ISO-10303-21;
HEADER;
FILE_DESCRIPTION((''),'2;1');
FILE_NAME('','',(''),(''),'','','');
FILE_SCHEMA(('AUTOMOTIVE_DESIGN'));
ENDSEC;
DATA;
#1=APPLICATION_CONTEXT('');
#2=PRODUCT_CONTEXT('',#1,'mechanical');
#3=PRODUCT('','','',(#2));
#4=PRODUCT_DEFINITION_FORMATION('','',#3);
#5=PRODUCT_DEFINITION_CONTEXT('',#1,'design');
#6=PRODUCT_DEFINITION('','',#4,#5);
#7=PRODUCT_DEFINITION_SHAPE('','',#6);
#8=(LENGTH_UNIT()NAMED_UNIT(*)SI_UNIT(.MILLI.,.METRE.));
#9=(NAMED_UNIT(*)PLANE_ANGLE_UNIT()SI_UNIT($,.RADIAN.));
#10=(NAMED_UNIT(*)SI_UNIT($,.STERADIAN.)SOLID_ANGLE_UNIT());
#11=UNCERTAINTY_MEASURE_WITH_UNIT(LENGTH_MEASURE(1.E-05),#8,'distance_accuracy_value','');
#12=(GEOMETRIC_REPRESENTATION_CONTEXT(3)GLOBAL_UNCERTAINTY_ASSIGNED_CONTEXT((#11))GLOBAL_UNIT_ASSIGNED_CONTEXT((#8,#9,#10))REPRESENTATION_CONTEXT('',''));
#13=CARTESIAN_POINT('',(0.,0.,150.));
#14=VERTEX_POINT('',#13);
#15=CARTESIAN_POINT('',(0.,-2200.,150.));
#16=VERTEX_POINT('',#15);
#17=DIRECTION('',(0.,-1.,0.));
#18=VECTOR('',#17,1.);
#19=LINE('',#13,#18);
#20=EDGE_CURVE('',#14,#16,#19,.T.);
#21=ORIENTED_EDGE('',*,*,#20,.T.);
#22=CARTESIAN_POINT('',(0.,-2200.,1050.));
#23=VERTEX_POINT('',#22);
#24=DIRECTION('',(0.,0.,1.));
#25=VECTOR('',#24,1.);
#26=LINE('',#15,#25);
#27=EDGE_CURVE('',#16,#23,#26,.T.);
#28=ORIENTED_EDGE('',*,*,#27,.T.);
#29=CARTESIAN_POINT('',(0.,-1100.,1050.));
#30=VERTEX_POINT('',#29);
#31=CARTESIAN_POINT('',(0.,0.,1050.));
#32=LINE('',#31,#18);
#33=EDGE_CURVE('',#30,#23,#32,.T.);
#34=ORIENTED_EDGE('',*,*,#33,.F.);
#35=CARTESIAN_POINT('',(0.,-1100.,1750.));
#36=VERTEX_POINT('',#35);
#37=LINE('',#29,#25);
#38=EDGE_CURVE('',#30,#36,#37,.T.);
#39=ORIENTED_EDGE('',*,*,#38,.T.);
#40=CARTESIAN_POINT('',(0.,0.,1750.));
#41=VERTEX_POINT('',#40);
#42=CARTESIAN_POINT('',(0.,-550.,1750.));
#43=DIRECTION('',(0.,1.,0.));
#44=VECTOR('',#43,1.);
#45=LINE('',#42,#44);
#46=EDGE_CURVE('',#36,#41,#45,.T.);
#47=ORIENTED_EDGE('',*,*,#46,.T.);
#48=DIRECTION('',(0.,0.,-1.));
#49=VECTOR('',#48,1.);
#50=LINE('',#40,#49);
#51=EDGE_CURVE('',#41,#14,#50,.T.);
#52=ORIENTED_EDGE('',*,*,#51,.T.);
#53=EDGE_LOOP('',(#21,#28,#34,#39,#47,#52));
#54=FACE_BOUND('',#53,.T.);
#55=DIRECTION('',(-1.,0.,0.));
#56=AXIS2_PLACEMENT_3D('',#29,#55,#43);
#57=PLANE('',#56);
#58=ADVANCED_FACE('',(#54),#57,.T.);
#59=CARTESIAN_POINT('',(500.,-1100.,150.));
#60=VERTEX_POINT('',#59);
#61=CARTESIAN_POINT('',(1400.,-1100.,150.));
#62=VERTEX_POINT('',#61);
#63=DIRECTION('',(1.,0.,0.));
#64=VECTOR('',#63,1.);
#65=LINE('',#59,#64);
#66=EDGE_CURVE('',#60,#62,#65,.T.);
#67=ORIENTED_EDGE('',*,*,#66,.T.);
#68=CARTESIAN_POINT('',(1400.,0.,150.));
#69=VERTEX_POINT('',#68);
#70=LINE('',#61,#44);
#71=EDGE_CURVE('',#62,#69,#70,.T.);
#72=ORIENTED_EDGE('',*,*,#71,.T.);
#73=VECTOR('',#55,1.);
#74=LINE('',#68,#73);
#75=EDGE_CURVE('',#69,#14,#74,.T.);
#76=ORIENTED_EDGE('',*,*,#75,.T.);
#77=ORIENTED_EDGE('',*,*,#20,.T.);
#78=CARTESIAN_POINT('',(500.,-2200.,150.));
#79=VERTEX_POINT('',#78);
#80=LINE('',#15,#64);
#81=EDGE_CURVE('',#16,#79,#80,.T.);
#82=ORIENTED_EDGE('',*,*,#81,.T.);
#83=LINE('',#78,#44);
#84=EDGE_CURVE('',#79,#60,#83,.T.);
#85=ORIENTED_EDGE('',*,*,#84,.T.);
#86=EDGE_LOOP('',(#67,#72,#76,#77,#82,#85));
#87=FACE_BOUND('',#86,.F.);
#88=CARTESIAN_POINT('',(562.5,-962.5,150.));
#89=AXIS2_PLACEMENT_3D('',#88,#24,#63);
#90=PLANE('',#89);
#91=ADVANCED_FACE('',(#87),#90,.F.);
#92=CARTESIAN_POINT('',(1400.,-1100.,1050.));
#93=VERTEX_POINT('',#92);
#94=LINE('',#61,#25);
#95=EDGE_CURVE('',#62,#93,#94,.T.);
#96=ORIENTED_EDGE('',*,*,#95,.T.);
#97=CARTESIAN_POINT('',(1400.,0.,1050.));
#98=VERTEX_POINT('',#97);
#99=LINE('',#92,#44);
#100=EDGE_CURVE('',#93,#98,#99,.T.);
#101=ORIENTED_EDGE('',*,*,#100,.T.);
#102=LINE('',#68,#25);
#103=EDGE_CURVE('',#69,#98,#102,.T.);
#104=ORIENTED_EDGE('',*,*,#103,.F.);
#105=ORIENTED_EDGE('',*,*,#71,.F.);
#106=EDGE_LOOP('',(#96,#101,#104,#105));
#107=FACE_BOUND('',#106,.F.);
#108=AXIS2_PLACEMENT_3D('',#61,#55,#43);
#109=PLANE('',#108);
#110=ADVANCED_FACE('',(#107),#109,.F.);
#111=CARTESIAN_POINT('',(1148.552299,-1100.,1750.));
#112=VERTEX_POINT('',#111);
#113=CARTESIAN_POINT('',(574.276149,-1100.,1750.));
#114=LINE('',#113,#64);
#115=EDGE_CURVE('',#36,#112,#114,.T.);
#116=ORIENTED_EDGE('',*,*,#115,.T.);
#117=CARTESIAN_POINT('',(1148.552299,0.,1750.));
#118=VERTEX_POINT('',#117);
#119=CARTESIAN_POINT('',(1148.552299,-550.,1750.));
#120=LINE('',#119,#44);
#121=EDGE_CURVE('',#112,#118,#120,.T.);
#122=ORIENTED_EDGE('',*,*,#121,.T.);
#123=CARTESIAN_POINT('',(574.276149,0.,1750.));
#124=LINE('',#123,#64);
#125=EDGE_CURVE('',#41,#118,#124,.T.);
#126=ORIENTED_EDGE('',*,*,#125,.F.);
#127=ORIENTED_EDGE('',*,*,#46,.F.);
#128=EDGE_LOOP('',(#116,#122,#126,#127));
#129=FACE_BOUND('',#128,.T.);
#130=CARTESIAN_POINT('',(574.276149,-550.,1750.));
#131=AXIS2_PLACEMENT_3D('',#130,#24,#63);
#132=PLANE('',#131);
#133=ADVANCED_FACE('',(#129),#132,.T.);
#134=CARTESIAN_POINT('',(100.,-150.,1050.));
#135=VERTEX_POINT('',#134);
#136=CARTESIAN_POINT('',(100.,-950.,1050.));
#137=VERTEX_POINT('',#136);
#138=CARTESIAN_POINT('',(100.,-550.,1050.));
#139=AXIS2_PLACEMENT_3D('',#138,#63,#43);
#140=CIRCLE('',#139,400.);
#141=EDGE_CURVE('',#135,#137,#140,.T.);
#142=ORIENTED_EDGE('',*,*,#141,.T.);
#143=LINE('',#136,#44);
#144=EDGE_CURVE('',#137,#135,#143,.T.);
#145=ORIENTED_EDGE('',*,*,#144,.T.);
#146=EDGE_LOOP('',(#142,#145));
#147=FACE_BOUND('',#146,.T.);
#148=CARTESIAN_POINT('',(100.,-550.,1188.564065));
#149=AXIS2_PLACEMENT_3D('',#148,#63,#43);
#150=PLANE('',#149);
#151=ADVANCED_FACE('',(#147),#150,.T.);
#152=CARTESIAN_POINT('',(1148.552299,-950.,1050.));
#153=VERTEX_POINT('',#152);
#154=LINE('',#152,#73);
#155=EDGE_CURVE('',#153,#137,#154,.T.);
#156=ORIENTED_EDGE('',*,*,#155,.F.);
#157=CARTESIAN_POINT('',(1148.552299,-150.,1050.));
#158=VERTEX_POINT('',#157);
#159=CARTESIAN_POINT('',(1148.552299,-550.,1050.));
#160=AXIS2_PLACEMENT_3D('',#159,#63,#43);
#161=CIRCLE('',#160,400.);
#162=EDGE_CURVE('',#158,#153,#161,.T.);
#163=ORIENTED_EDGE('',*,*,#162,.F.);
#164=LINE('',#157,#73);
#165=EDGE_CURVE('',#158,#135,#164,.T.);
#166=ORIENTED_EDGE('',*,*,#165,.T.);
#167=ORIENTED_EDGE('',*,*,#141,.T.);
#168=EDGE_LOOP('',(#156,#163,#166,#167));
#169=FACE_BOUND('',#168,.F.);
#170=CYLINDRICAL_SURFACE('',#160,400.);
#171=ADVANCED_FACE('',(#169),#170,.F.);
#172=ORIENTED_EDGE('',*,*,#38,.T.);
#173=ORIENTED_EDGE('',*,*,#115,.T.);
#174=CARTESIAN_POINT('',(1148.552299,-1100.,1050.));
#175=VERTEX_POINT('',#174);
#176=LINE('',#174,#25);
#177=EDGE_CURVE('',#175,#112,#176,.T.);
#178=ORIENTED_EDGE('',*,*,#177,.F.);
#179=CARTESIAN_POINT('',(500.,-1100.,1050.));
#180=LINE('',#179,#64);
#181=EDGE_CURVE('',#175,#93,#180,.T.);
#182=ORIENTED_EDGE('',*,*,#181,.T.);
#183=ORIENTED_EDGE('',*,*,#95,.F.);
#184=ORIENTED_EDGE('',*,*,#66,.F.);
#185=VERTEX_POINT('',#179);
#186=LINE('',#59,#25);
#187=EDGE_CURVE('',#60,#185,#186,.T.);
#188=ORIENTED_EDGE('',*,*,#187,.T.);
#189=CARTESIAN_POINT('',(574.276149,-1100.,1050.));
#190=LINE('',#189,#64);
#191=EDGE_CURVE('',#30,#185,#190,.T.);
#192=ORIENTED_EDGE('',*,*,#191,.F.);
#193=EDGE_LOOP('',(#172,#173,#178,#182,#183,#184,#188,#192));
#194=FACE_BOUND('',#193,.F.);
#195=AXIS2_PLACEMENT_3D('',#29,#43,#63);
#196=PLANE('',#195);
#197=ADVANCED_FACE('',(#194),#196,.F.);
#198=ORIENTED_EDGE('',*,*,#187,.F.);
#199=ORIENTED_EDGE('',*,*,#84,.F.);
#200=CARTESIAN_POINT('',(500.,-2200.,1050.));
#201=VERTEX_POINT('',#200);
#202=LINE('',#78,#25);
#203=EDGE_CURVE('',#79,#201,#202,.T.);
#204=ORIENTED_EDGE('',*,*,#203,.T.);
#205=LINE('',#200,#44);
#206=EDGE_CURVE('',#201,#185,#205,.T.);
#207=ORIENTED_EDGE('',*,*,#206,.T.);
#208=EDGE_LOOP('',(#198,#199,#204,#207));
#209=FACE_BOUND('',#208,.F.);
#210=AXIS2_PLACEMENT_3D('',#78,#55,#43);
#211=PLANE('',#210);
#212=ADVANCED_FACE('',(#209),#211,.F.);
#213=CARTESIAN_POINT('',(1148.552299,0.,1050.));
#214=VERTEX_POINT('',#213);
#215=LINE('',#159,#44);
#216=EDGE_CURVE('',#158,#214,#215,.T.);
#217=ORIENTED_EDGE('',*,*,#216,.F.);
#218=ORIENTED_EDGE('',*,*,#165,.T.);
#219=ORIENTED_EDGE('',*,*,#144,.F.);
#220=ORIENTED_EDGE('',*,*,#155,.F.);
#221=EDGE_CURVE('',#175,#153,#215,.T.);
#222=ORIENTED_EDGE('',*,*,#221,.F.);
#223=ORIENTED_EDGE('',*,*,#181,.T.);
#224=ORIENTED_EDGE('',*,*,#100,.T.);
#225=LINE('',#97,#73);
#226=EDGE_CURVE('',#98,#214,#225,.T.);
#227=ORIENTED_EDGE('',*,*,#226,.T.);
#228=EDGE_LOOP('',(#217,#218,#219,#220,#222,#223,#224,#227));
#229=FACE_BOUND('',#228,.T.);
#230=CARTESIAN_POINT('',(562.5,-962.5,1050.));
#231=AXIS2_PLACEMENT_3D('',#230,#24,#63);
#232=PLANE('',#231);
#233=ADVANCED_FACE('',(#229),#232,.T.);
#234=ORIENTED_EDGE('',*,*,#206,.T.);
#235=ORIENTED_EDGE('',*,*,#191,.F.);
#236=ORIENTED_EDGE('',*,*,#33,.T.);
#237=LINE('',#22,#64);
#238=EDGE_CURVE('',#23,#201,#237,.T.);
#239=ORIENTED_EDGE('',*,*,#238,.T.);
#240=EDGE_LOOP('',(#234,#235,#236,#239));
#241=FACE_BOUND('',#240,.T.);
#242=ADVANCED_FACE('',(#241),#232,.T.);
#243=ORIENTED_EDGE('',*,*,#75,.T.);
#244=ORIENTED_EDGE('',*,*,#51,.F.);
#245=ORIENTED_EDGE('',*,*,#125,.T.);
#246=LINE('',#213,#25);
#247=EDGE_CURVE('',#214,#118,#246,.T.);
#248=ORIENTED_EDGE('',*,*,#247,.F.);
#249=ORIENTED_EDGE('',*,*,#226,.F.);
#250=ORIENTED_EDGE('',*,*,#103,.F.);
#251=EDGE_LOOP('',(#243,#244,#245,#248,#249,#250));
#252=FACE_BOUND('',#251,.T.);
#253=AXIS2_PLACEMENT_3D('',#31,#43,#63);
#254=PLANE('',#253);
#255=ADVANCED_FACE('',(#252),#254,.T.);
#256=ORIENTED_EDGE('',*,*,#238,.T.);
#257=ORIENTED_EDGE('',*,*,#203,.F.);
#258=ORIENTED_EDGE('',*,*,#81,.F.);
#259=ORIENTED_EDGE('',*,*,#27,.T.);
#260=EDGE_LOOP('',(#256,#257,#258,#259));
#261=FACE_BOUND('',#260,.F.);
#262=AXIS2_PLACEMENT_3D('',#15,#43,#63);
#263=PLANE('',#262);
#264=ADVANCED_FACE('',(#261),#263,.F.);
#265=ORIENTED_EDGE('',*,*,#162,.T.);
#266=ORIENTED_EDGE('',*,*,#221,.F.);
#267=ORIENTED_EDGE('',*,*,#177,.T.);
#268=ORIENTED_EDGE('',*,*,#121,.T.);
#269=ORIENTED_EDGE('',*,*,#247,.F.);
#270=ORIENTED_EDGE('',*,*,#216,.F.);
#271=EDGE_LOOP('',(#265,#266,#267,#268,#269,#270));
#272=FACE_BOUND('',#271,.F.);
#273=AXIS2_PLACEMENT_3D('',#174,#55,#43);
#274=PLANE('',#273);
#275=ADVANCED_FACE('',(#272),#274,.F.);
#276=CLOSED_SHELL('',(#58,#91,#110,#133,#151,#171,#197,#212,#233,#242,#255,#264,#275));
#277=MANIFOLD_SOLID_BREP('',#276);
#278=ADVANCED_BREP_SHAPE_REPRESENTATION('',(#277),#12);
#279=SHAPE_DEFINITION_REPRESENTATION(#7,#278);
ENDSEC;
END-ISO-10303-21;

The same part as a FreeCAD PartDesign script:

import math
import FreeCAD as App
import Part
import Sketcher
Q = App.Units.Quantity

doc = App.newDocument("Part")
params = doc.addObject("Spreadsheet::Sheet", "Params")
for row, (alias, value) in enumerate([
    ("sketch1_width", "1400 mm"),
    ("sketch1_width2", "500 mm"),
    ("sketch1_height", "2200 mm"),
    ("pad1_length", "900 mm"),
    ("sketch2_height", "1100 mm"),
    ("pad2_length", "700 mm"),
    ("sketch3_radius", "400 mm"),
    ("pocket1_length", "1048.552299 mm"),
], start=1):
    params.set(f"A{row}", alias)
    params.set(f"B{row}", "=" + value)
    params.setAlias(f"B{row}", alias)

body = doc.addObject("PartDesign::Body", "Body")

sketch1 = body.newObject("Sketcher::SketchObject", "Sketch")
sketch1.AttachmentSupport = (doc.getObject("XY_Plane"), [""])
sketch1.MapMode = "FlatFace"
sketch1.AttachmentOffset = App.Placement(App.Vector(0, 0, 150), App.Rotation())
sketch1.addGeometry([
    Part.LineSegment(App.Vector(1400, 0, 0), App.Vector(0, 0, 0)),
    Part.LineSegment(App.Vector(0, 0, 0), App.Vector(0, -2200, 0)),
    Part.LineSegment(App.Vector(0, -2200, 0), App.Vector(500, -2200, 0)),
    Part.LineSegment(App.Vector(500, -2200, 0), App.Vector(500, -1100, 0)),
    Part.LineSegment(App.Vector(500, -1100, 0), App.Vector(1400, -1100, 0)),
    Part.LineSegment(App.Vector(1400, -1100, 0), App.Vector(1400, 0, 0)),
], False)
sketch1.addConstraint([
    Sketcher.Constraint("Coincident", 0, 2, 1, 1),
    Sketcher.Constraint("Coincident", 1, 2, 2, 1),
    Sketcher.Constraint("Coincident", 2, 2, 3, 1),
    Sketcher.Constraint("Coincident", 3, 2, 4, 1),
    Sketcher.Constraint("Coincident", 4, 2, 5, 1),
    Sketcher.Constraint("Coincident", 5, 2, 0, 1),
    Sketcher.Constraint("Horizontal", 0),
    Sketcher.Constraint("Vertical", 1),
    Sketcher.Constraint("Horizontal", 2),
    Sketcher.Constraint("Vertical", 3),
    Sketcher.Constraint("Horizontal", 4),
    Sketcher.Constraint("Vertical", 5),
    Sketcher.Constraint("Coincident", 0, 2, -1, 1),
    Sketcher.Constraint("Equal", 3, 5),
    Sketcher.Constraint("DistanceX", 0, 2, 0, 1, Q("1400 mm")),
    Sketcher.Constraint("DistanceX", 2, 1, 2, 2, Q("500 mm")),
    Sketcher.Constraint("DistanceY", 1, 2, 1, 1, Q("2200 mm")),
])
sketch1.setExpression("Constraints[14]", "Params.sketch1_width")
sketch1.setExpression("Constraints[15]", "Params.sketch1_width2")
sketch1.setExpression("Constraints[16]", "Params.sketch1_height")
pad1 = body.newObject("PartDesign::Pad", "Pad")
pad1.Profile = sketch1
pad1.setExpression("Length", "Params.pad1_length")

sketch2 = body.newObject("Sketcher::SketchObject", "Sketch001")
sketch2.AttachmentSupport = (doc.getObject("XY_Plane"), [""])
sketch2.MapMode = "FlatFace"
sketch2.AttachmentOffset = App.Placement(App.Vector(0, 0, 1050), App.Rotation())
sketch2.addGeometry([
    Part.LineSegment(App.Vector(0, 0, 0), App.Vector(0, -1100, 0)),
    Part.LineSegment(App.Vector(0, -1100, 0), App.Vector(1149, -1100, 0)),
    Part.LineSegment(App.Vector(1149, -1100, 0), App.Vector(1149, 0, 0)),
    Part.LineSegment(App.Vector(1149, 0, 0), App.Vector(0, 0, 0)),
], False)
sketch2.addConstraint([
    Sketcher.Constraint("Coincident", 0, 2, 1, 1),
    Sketcher.Constraint("Coincident", 1, 2, 2, 1),
    Sketcher.Constraint("Coincident", 2, 2, 3, 1),
    Sketcher.Constraint("Coincident", 3, 2, 0, 1),
    Sketcher.Constraint("Vertical", 0),
    Sketcher.Constraint("Horizontal", 1),
    Sketcher.Constraint("Vertical", 2),
    Sketcher.Constraint("Horizontal", 3),
    Sketcher.Constraint("Coincident", 3, 2, -1, 1),
    Sketcher.Constraint("DistanceY", 0, 2, 0, 1, Q("1100 mm")),
    Sketcher.Constraint("DistanceX", 1, 1, 1, 2, Q("1148.552299 mm")),
])
sketch2.setExpression("Constraints[9]", "Params.sketch2_height")
pad2 = body.newObject("PartDesign::Pad", "Pad001")
pad2.Profile = sketch2
pad2.setExpression("Length", "Params.pad2_length")

sketch3 = body.newObject("Sketcher::SketchObject", "Sketch002")
sketch3.AttachmentSupport = (doc.getObject("YZ_Plane"), [""])
sketch3.MapMode = "FlatFace"
sketch3.AttachmentOffset = App.Placement(App.Vector(0, 0, 1148.552299), App.Rotation())
sketch3.addGeometry([
    Part.LineSegment(App.Vector(-950, 1050, 0), App.Vector(-150, 1050, 0)),
    Part.ArcOfCircle(Part.Circle(App.Vector(-550, 1050, 0), App.Vector(0, 0, 1), 400), math.radians(0), math.radians(180)),
], False)
sketch3.addConstraint([
    Sketcher.Constraint("Coincident", 0, 1, 1, 2),
    Sketcher.Constraint("Coincident", 1, 1, 0, 2),
    Sketcher.Constraint("Horizontal", 0),
    Sketcher.Constraint("Horizontal", 1, 3, 0, 1),
    Sketcher.Constraint("Radius", 1, Q("400 mm")),
    Sketcher.Constraint("DistanceX", 1, 3, -1, 1, Q("550 mm")),
    Sketcher.Constraint("DistanceY", -1, 1, 1, 3, Q("1050 mm")),
])
sketch3.setExpression("Constraints[4]", "Params.sketch3_radius")
pocket1 = body.newObject("PartDesign::Pocket", "Pocket")
pocket1.Profile = sketch3
pocket1.setExpression("Length", "Params.pocket1_length")

doc.recompute()
